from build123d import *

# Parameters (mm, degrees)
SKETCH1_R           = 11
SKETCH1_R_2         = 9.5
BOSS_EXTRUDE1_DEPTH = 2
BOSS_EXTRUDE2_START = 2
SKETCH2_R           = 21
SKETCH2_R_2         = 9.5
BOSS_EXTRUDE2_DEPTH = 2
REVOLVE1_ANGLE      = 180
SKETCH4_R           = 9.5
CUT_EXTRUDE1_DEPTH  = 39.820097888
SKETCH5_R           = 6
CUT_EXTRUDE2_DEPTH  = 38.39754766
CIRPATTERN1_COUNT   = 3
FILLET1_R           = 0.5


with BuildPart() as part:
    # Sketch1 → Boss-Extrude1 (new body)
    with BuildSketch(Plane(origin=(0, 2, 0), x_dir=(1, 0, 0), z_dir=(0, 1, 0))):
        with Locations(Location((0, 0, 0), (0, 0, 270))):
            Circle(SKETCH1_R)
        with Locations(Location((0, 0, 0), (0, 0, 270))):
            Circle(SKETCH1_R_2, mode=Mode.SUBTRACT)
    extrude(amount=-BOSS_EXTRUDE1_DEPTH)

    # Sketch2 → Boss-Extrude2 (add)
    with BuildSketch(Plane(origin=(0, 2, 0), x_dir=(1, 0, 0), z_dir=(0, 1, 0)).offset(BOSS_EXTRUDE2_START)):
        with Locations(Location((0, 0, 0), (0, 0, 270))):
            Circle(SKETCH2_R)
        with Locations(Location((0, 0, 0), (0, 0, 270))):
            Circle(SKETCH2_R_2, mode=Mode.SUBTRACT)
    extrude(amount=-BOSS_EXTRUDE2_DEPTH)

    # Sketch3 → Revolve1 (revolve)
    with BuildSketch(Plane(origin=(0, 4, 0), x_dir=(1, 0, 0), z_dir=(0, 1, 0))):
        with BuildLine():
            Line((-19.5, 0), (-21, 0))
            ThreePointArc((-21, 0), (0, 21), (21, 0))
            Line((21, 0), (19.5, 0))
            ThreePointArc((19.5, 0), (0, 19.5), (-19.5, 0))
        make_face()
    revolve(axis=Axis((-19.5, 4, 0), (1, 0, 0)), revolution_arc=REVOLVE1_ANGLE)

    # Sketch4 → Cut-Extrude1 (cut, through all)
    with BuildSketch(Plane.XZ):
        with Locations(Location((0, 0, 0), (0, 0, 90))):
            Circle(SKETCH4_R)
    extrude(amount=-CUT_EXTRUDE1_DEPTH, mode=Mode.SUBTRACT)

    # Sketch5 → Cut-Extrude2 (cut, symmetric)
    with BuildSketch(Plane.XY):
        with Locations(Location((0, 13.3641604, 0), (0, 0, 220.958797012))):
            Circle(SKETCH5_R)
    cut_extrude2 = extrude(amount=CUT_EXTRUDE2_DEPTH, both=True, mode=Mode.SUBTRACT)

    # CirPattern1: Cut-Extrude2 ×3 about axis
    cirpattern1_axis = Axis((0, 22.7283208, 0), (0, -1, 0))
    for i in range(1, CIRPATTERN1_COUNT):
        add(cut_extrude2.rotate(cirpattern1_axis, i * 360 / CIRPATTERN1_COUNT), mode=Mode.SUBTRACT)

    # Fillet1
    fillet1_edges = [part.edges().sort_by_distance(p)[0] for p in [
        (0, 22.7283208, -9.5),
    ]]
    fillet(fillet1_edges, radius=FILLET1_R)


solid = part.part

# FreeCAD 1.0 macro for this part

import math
import FreeCAD as App
import Part
import Sketcher
from FreeCAD import Vector


def edges_at(feature, points):
    """Names of the edges that pass closest to the given points."""
    edges = feature.Shape.Edges
    near = lambda p: min(range(len(edges)), key=lambda i: edges[i].distToShape(Part.Vertex(*p))[0])
    return sorted({f"Edge{near(p) + 1}" for p in points})

doc = App.newDocument("Part")
body = doc.addObject("PartDesign::Body", "Body")

sketch1 = doc.addObject("Sketcher::SketchObject", "Sketch")
body.addObject(sketch1)
sketch1.AttachmentSupport = (doc.XZ_Plane, [""])
sketch1.MapMode = "FlatFace"
sketch1.AttachmentOffset = App.Placement(Vector(0, 0, -2), App.Rotation())
sketch1.addGeometry(Part.Circle(Vector(0, 0, 0), Vector(0, 0, 1), 11), False)
sketch1.addGeometry(Part.Circle(Vector(0, 0, 0), Vector(0, 0, 1), 10), False)
sketch1.addConstraint(Sketcher.Constraint("Coincident", 0, 3, -1, 1))
sketch1.addConstraint(Sketcher.Constraint("Coincident", 1, 3, -1, 1))
sketch1.addConstraint(Sketcher.Constraint("Diameter", 0, 22.0))
sketch1.addConstraint(Sketcher.Constraint("Diameter", 1, 19.0))
pad1 = doc.addObject("PartDesign::Pad", "Pad")
body.addObject(pad1)
pad1.Profile = sketch1
pad1.Length = 2

sketch2 = doc.addObject("Sketcher::SketchObject", "Sketch001")
body.addObject(sketch2)
sketch2.AttachmentSupport = (doc.XZ_Plane, [""])
sketch2.MapMode = "FlatFace"
sketch2.AttachmentOffset = App.Placement(Vector(0, 0, -4), App.Rotation())
sketch2.addGeometry(Part.Circle(Vector(0, 0, 0), Vector(0, 0, 1), 21), False)
sketch2.addGeometry(Part.Circle(Vector(0, 0, 0), Vector(0, 0, 1), 10), False)
sketch2.addConstraint(Sketcher.Constraint("Coincident", 0, 3, -1, 1))
sketch2.addConstraint(Sketcher.Constraint("Coincident", 1, 3, -1, 1))
sketch2.addConstraint(Sketcher.Constraint("Diameter", 0, 42.0))
sketch2.addConstraint(Sketcher.Constraint("Diameter", 1, 19.0))
pad2 = doc.addObject("PartDesign::Pad", "Pad001")
body.addObject(pad2)
pad2.Profile = sketch2
pad2.Length = 2

sketch3 = doc.addObject("Sketcher::SketchObject", "Sketch002")
body.addObject(sketch3)
sketch3.AttachmentSupport = (doc.XZ_Plane, [""])
sketch3.MapMode = "FlatFace"
sketch3.AttachmentOffset = App.Placement(Vector(0, 0, -4), App.Rotation())
sketch3.addGeometry(Part.LineSegment(Vector(-21, 0, 0), Vector(-19.5, 0, 0)), False)
sketch3.addGeometry(Part.ArcOfCircle(Part.Circle(Vector(0, 0, 0), Vector(0, 0, 1), 19.5), math.radians(180), math.radians(360)), False)
sketch3.addGeometry(Part.LineSegment(Vector(19.5, 0, 0), Vector(21, 0, 0)), False)
sketch3.addGeometry(Part.ArcOfCircle(Part.Circle(Vector(0, 0, 0), Vector(0, 0, 1), 21), math.radians(180), math.radians(360)), False)
sketch3.addConstraint(Sketcher.Constraint("Coincident", 0, 2, 1, 1))
sketch3.addConstraint(Sketcher.Constraint("Coincident", 1, 2, 2, 1))
sketch3.addConstraint(Sketcher.Constraint("Coincident", 2, 2, 3, 2))
sketch3.addConstraint(Sketcher.Constraint("Coincident", 3, 1, 0, 1))
sketch3.addConstraint(Sketcher.Constraint("Horizontal", 0))
sketch3.addConstraint(Sketcher.Constraint("Horizontal", 2))
sketch3.addConstraint(Sketcher.Constraint("Coincident", 1, 3, -1, 1))
sketch3.addConstraint(Sketcher.Constraint("Coincident", 3, 3, -1, 1))
sketch3.addConstraint(Sketcher.Constraint("PointOnObject", 0, 2, -1))
sketch3.addConstraint(Sketcher.Constraint("PointOnObject", 1, 2, -1))
sketch3.addConstraint(Sketcher.Constraint("Radius", 3, 21.0))
sketch3.addConstraint(Sketcher.Constraint("Radius", 1, 19.5))
revolution = doc.addObject("PartDesign::Revolution", "Revolution")
body.addObject(revolution)
revolution.Profile = sketch3
revolution.ReferenceAxis = (sketch3, ["H_Axis"])
revolution.Angle = 180

sketch4 = doc.addObject("Sketcher::SketchObject", "Sketch003")
body.addObject(sketch4)
sketch4.AttachmentSupport = (doc.XZ_Plane, [""])
sketch4.MapMode = "FlatFace"
sketch4.addGeometry(Part.Circle(Vector(0, 0, 0), Vector(0, 0, 1), 10), False)
sketch4.addConstraint(Sketcher.Constraint("Coincident", 0, 3, -1, 1))
sketch4.addConstraint(Sketcher.Constraint("Diameter", 0, 19.0))
pocket1 = doc.addObject("PartDesign::Pocket", "Pocket")
body.addObject(pocket1)
pocket1.Profile = sketch4
pocket1.Type = "ThroughAll"

sketch5 = doc.addObject("Sketcher::SketchObject", "Sketch004")
body.addObject(sketch5)
sketch5.AttachmentSupport = (doc.XY_Plane, [""])
sketch5.MapMode = "FlatFace"
sketch5.addGeometry(Part.Circle(Vector(0, 13, 0), Vector(0, 0, 1), 6), False)
sketch5.addConstraint(Sketcher.Constraint("PointOnObject", 0, 3, -2))
sketch5.addConstraint(Sketcher.Constraint("Diameter", 0, 12.0))
sketch5.addConstraint(Sketcher.Constraint("DistanceY", -1, 1, 0, 3, 13.36416))
pocket2 = doc.addObject("PartDesign::Pocket", "Pocket001")
body.addObject(pocket2)
pocket2.Profile = sketch5
pocket2.Length = 76.795095
pocket2.Midplane = True
doc.recompute()

polarpattern = doc.addObject("PartDesign::PolarPattern", "PolarPattern")
body.addObject(polarpattern)
polarpattern.Originals = [pocket2]
polarpattern.Axis = (doc.Y_Axis, [""])
polarpattern.Angle = 360
polarpattern.Occurrences = 3
body.Tip = polarpattern
doc.recompute()

fillet = doc.addObject("PartDesign::Fillet", "Fillet")
body.addObject(fillet)
fillet.Base = (polarpattern, edges_at(polarpattern, [(0, 22.728, -9.5)]))
fillet.Radius = 0.5

doc.recompute()
